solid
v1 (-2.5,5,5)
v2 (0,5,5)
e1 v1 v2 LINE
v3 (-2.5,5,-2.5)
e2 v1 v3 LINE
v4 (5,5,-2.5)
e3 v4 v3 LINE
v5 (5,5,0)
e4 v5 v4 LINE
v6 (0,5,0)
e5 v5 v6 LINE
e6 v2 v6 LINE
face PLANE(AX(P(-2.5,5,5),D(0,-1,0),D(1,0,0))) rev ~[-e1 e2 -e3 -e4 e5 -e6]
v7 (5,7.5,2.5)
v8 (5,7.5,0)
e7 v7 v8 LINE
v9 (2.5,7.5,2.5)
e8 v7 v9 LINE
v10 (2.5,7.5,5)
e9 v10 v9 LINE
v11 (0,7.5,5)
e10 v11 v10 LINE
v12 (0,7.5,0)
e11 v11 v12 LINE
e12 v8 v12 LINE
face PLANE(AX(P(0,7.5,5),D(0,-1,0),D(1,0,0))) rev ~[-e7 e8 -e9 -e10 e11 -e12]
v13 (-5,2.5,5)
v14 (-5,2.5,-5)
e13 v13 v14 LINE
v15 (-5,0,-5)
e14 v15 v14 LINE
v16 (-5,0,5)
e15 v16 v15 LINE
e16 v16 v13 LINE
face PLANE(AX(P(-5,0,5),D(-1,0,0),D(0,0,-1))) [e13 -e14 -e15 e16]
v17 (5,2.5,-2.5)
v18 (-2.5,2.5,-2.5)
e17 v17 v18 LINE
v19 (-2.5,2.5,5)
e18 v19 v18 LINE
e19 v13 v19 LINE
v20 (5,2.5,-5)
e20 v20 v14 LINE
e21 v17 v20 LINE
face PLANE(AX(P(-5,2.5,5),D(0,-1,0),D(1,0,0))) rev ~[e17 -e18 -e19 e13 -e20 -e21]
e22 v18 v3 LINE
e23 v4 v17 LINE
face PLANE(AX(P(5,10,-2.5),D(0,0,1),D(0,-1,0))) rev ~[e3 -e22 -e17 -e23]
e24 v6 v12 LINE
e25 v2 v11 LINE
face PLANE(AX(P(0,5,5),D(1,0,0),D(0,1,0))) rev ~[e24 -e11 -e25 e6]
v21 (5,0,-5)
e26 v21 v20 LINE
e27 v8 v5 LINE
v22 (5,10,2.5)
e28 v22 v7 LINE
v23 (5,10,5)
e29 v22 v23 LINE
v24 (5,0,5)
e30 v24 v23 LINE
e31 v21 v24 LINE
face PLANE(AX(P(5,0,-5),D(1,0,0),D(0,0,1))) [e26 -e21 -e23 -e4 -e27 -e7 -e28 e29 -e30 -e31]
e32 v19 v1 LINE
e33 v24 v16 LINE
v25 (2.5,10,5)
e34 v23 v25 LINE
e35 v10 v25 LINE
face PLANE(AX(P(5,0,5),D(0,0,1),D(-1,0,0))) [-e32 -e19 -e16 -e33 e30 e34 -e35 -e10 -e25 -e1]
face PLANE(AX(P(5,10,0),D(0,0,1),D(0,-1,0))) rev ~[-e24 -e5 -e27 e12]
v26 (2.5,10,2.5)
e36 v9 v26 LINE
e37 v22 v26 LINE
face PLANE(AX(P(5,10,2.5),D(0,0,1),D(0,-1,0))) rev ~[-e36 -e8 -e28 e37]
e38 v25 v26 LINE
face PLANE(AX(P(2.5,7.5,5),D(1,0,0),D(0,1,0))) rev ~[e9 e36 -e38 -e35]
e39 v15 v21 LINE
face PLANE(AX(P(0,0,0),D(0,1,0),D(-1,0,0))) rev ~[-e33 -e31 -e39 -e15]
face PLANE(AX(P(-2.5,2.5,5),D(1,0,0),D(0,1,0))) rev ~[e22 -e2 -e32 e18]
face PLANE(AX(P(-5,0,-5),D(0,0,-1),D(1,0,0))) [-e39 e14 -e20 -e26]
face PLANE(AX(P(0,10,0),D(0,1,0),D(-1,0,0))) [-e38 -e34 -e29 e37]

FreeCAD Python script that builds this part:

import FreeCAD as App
import Part
import Sketcher

V = App.Vector


def add_polygon(sketch, points):
    """Adds a closed chain of lines whose ends are joined by coincident constraints."""
    first, n = sketch.GeometryCount, len(points)
    for a, b in zip(points, points[1:] + points[:1]):
        sketch.addGeometry(Part.LineSegment(App.Vector(*a, 0), App.Vector(*b, 0)), False)
    for i in range(n):
        sketch.addConstraint(Sketcher.Constraint("Coincident", first + i, 2, first + (i + 1) % n, 1))

doc = App.newDocument("Part")
body = doc.addObject("PartDesign::Body", "Body")

sketch1 = body.newObject("Sketcher::SketchObject", "Sketch")
sketch1.AttachmentSupport = (doc.getObject("XZ_Plane"), [""])
sketch1.MapMode = "FlatFace"
add_polygon(sketch1, [(-5, 5), (5, 5), (5, -5), (-5, -5)])
sketch1.addConstraint(Sketcher.Constraint("Horizontal", 0))
sketch1.addConstraint(Sketcher.Constraint("Vertical", 1))
sketch1.addConstraint(Sketcher.Constraint("Horizontal", 2))
sketch1.addConstraint(Sketcher.Constraint("Vertical", 3))
sketch1.addConstraint(Sketcher.Constraint("Symmetric", 0, 2, 2, 2, -1, 1))
sketch1.addConstraint(Sketcher.Constraint("Equal", 2, 1))
sketch1.addConstraint(Sketcher.Constraint("DistanceX", 0, 1, 0, 2, 10.0))
pad1 = body.newObject("PartDesign::Pad", "Pad")
pad1.Profile = sketch1
pad1.Length = 10
pad1.Reversed = True

sketch2 = body.newObject("Sketcher::SketchObject", "Sketch001")
sketch2.AttachmentSupport = (doc.getObject("YZ_Plane"), [""])
sketch2.MapMode = "FlatFace"
sketch2.AttachmentOffset = App.Placement(V(0, 0, 5), App.Rotation())
add_polygon(sketch2, [(2.5, -5), (10, -5), (10, -2.5), (2.5, -2.5)])
sketch2.addConstraint(Sketcher.Constraint("Horizontal", 0))
sketch2.addConstraint(Sketcher.Constraint("Vertical", 1))
sketch2.addConstraint(Sketcher.Constraint("Horizontal", 2))
sketch2.addConstraint(Sketcher.Constraint("Vertical", 3))
sketch2.addConstraint(Sketcher.Constraint("DistanceX", 0, 1, 0, 2, 7.5))
sketch2.addConstraint(Sketcher.Constraint("DistanceY", 1, 1, 1, 2, 2.5))
sketch2.addConstraint(Sketcher.Constraint("DistanceY", 1, 2, -1, 1, 2.5))
sketch2.addConstraint(Sketcher.Constraint("DistanceX", -1, 1, 2, 2, 2.5))
pocket1 = body.newObject("PartDesign::Pocket", "Pocket")
pocket1.Profile = sketch2
pocket1.Length = 10

sketch3 = body.newObject("Sketcher::SketchObject", "Sketch002")
sketch3.AttachmentSupport = (doc.getObject("YZ_Plane"), [""])
sketch3.MapMode = "FlatFace"
sketch3.AttachmentOffset = App.Placement(V(0, 0, 5), App.Rotation())
add_polygon(sketch3, [(5, -2.5), (10, -2.5), (10, 0), (5, 0)])
sketch3.addConstraint(Sketcher.Constraint("Horizontal", 0))
sketch3.addConstraint(Sketcher.Constraint("Vertical", 1))
sketch3.addConstraint(Sketcher.Constraint("Horizontal", 2))
sketch3.addConstraint(Sketcher.Constraint("Vertical", 3))
sketch3.addConstraint(Sketcher.Constraint("PointOnObject", 1, 2, -1))
sketch3.addConstraint(Sketcher.Constraint("DistanceX", 0, 1, 0, 2, 5.0))
sketch3.addConstraint(Sketcher.Constraint("DistanceY", 1, 1, 1, 2, 2.5))
sketch3.addConstraint(Sketcher.Constraint("DistanceX", -1, 1, 2, 2, 5.0))
pocket2 = body.newObject("PartDesign::Pocket", "Pocket001")
pocket2.Profile = sketch3
pocket2.Length = 10

sketch4 = body.newObject("Sketcher::SketchObject", "Sketch003")
sketch4.AttachmentSupport = (doc.getObject("YZ_Plane"), [""])
sketch4.MapMode = "FlatFace"
sketch4.AttachmentOffset = App.Placement(V(0, 0, 5), App.Rotation())
add_polygon(sketch4, [(7.5, 0), (10, 0), (10, 2.5), (7.5, 2.5)])
sketch4.addConstraint(Sketcher.Constraint("Horizontal", 0))
sketch4.addConstraint(Sketcher.Constraint("Vertical", 1))
sketch4.addConstraint(Sketcher.Constraint("Horizontal", 2))
sketch4.addConstraint(Sketcher.Constraint("Vertical", 3))
sketch4.addConstraint(Sketcher.Constraint("PointOnObject", 0, 2, -1))
sketch4.addConstraint(Sketcher.Constraint("Equal", 2, 1))
sketch4.addConstraint(Sketcher.Constraint("DistanceX", 0, 1, 0, 2, 2.5))
sketch4.addConstraint(Sketcher.Constraint("DistanceX", -1, 1, 0, 2, 10.0))
pocket3 = body.newObject("PartDesign::Pocket", "Pocket002")
pocket3.Profile = sketch4
pocket3.Length = 10

sketch5 = body.newObject("Sketcher::SketchObject", "Sketch004")
sketch5.AttachmentSupport = (doc.getObject("XY_Plane"), [""])
sketch5.MapMode = "FlatFace"
sketch5.AttachmentOffset = App.Placement(V(0, 0, 5), App.Rotation())
add_polygon(sketch5, [(2.5, 10), (-5, 10), (-5, 2.5), (-2.5, 2.5), (-2.5, 5), (0, 5), (0, 7.5), (2.5, 7.5)])
sketch5.addConstraint(Sketcher.Constraint("Horizontal", 0))
sketch5.addConstraint(Sketcher.Constraint("Vertical", 1))
sketch5.addConstraint(Sketcher.Constraint("Horizontal", 2))
sketch5.addConstraint(Sketcher.Constraint("Vertical", 3))
sketch5.addConstraint(Sketcher.Constraint("Horizontal", 4))
sketch5.addConstraint(Sketcher.Constraint("Vertical", 5))
sketch5.addConstraint(Sketcher.Constraint("Horizontal", 6))
sketch5.addConstraint(Sketcher.Constraint("Vertical", 7))
sketch5.addConstraint(Sketcher.Constraint("PointOnObject", 4, 2, -2))
sketch5.addConstraint(Sketcher.Constraint("Equal", 2, 4))
sketch5.addConstraint(Sketcher.Constraint("Equal", 4, 6))
sketch5.addConstraint(Sketcher.Constraint("Equal", 0, 1))
sketch5.addConstraint(Sketcher.Constraint("Equal", 6, 3))
sketch5.addConstraint(Sketcher.Constraint("Equal", 3, 5))
sketch5.addConstraint(Sketcher.Constraint("DistanceX", 0, 2, 0, 1, 7.5))
sketch5.addConstraint(Sketcher.Constraint("DistanceY", -1, 1, 1, 2, 2.5))
pocket4 = body.newObject("PartDesign::Pocket", "Pocket003")
pocket4.Profile = sketch5
pocket4.Length = 10

doc.recompute()
